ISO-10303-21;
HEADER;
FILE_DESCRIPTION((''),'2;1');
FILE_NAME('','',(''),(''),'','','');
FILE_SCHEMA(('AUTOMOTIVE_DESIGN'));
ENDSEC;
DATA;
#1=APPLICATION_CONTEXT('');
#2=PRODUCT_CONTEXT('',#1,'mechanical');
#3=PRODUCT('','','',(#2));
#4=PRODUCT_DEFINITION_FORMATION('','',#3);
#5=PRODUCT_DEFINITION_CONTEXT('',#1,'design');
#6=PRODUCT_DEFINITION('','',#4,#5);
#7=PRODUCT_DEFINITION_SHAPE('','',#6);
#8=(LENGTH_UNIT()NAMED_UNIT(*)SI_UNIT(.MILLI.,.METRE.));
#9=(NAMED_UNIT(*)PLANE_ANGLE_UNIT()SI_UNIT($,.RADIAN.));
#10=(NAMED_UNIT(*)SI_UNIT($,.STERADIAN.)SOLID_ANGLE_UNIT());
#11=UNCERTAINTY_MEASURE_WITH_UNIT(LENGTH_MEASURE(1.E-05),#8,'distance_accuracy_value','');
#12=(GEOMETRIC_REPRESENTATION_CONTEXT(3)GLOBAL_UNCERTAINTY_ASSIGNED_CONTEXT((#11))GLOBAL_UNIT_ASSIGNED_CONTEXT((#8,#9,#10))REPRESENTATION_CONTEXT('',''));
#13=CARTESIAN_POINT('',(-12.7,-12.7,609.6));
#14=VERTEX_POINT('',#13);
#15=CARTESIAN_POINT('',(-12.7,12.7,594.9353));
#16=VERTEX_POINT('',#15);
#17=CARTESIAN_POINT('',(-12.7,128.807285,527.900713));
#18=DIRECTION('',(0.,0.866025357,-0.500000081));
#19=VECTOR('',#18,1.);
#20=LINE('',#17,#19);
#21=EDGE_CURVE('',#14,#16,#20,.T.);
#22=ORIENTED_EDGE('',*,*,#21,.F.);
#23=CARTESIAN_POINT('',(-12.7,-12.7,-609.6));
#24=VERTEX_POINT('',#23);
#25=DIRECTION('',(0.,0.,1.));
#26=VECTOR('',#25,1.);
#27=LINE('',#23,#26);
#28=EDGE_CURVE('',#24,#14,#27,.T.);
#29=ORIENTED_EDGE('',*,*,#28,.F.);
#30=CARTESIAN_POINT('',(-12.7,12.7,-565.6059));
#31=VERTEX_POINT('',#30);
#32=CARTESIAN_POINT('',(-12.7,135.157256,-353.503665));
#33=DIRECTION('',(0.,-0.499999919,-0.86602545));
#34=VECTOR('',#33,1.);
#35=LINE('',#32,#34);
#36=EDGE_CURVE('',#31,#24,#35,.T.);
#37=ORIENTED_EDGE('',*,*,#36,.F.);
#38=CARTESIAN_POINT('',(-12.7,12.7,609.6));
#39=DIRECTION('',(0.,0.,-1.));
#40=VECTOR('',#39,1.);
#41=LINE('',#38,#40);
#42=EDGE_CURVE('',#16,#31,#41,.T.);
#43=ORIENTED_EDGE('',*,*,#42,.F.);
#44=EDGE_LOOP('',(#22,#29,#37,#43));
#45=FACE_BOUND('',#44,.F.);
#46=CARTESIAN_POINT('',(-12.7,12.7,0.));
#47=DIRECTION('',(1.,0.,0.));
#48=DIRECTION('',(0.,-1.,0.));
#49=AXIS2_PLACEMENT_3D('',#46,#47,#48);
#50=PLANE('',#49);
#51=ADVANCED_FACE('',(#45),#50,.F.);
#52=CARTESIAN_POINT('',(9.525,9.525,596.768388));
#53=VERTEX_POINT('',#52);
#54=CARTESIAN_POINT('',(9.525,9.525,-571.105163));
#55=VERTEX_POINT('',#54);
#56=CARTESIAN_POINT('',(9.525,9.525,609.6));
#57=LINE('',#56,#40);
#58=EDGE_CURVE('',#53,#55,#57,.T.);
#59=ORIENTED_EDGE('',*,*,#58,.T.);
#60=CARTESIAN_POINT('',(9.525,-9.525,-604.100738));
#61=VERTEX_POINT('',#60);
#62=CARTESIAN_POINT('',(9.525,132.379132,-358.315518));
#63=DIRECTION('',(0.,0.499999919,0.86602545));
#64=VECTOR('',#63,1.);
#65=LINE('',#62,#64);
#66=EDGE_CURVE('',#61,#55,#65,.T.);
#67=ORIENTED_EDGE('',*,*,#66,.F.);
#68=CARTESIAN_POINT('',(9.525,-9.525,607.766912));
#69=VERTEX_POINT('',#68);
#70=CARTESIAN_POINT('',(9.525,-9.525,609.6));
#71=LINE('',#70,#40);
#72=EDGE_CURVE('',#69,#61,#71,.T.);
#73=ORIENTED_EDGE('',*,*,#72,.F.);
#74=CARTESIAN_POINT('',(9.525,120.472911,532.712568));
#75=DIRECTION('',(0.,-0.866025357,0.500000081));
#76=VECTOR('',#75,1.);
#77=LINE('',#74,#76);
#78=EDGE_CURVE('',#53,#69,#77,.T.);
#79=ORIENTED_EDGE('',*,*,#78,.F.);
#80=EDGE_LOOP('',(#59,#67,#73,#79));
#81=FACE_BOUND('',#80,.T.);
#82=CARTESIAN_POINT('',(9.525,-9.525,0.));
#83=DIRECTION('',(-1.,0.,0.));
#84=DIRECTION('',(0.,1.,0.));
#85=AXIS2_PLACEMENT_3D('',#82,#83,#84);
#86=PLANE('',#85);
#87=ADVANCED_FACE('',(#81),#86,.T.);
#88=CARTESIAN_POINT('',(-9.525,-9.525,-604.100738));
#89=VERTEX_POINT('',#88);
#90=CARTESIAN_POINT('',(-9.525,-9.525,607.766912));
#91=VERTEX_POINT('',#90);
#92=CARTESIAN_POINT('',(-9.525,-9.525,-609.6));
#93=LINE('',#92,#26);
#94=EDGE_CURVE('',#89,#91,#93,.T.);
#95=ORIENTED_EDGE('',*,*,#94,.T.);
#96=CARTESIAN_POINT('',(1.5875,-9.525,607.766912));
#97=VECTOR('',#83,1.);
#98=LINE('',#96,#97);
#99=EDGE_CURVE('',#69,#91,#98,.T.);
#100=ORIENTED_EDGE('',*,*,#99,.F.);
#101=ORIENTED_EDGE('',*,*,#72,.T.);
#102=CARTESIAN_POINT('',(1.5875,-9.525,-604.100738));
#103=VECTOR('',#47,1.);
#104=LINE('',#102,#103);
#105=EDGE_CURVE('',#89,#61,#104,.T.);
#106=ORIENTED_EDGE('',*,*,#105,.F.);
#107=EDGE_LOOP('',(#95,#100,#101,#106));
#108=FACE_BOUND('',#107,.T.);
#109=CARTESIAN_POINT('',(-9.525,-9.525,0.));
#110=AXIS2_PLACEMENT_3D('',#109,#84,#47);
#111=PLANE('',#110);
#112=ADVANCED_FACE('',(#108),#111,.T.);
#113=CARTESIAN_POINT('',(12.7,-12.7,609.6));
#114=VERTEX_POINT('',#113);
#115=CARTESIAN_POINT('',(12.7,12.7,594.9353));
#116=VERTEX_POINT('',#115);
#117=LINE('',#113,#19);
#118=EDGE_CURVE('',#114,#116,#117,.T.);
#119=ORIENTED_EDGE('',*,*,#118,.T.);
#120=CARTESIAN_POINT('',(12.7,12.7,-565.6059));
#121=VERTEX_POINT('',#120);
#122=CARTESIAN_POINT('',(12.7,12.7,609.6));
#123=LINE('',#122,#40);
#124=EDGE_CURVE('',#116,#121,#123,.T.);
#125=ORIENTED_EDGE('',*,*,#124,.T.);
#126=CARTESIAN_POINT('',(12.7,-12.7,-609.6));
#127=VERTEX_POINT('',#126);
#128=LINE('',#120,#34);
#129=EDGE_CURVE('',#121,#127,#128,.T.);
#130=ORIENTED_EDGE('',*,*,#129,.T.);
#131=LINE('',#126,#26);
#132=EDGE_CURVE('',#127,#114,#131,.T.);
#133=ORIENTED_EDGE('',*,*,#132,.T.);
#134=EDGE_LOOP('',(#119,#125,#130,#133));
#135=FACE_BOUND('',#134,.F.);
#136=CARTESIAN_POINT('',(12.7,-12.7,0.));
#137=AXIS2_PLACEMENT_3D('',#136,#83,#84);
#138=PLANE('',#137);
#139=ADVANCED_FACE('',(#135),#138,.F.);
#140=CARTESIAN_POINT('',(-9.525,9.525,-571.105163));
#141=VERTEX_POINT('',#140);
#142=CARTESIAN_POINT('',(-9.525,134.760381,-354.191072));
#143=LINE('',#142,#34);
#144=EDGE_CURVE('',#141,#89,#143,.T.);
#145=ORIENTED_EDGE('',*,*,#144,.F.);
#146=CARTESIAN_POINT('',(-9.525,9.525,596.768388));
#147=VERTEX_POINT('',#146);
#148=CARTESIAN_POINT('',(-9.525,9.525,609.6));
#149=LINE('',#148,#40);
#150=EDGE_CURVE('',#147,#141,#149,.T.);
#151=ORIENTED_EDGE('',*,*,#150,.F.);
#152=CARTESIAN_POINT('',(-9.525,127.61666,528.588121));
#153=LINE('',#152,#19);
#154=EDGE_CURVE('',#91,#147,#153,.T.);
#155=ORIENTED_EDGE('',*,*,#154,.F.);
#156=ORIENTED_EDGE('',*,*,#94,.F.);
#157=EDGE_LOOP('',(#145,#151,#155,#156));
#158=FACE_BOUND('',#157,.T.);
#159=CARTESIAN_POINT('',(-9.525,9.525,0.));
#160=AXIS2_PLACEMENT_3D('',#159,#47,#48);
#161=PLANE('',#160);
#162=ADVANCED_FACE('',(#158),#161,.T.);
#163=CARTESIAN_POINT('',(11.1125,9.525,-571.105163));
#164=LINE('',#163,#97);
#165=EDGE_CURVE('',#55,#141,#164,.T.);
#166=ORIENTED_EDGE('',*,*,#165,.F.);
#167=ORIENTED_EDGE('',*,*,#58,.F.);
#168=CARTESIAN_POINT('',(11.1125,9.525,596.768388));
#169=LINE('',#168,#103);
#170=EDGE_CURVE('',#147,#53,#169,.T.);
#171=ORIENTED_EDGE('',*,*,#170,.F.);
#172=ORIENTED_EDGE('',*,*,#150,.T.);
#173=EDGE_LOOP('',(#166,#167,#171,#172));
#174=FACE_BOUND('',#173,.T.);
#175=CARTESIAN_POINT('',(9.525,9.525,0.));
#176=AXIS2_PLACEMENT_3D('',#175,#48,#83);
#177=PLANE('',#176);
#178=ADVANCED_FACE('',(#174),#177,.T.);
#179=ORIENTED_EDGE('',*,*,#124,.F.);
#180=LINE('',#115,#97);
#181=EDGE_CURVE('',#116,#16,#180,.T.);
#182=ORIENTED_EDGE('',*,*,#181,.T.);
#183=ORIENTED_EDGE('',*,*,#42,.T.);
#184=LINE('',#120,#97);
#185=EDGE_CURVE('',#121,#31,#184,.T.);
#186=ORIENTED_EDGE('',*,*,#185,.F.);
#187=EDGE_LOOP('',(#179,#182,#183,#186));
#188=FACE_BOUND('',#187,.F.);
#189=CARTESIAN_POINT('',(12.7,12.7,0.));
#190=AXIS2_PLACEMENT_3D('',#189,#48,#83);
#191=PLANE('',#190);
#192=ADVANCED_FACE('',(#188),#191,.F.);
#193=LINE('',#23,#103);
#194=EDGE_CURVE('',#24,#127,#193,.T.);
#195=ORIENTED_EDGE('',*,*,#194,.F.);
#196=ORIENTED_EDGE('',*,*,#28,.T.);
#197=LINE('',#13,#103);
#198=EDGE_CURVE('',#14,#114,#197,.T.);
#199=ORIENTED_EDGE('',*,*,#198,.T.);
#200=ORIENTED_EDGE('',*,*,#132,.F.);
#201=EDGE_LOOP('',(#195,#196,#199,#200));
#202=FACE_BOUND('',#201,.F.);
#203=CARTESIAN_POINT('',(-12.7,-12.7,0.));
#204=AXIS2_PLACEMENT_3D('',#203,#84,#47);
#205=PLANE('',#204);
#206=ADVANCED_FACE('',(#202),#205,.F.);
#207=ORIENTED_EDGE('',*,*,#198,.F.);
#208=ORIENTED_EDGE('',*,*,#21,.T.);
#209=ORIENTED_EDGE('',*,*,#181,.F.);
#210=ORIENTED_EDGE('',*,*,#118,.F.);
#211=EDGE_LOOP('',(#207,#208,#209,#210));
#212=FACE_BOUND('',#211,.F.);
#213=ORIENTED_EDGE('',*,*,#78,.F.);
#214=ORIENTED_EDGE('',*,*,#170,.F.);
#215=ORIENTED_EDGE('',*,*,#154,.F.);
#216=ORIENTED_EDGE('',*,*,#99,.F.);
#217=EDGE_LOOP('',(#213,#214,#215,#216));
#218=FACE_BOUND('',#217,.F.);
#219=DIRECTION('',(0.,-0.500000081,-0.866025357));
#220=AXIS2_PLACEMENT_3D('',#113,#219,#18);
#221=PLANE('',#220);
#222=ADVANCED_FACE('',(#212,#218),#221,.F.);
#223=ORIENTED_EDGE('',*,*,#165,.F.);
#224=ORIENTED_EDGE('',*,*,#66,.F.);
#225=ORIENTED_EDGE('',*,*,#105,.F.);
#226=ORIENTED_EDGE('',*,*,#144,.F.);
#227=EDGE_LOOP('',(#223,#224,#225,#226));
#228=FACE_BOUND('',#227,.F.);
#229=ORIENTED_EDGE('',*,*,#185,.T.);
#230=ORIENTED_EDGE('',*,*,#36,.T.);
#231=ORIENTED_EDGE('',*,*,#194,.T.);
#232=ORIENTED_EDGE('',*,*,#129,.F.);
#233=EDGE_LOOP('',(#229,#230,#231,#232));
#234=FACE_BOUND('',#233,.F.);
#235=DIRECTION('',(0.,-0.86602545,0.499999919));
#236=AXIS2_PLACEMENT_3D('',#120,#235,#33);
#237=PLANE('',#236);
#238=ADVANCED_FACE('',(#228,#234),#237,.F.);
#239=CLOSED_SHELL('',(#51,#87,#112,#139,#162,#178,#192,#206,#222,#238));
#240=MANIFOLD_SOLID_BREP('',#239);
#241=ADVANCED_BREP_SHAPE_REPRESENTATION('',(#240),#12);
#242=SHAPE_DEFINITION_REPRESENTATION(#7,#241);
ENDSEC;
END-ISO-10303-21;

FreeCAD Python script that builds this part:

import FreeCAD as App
import Part
import Sketcher
from FreeCAD import Vector
Q = App.Units.Quantity


def add_polygon(sketch, points):
    """Adds a closed chain of lines whose ends are joined by coincident constraints."""
    first, n = sketch.GeometryCount, len(points)
    for a, b in zip(points, points[1:] + points[:1]):
        sketch.addGeometry(Part.LineSegment(App.Vector(*a, 0), App.Vector(*b, 0)), False)
    for i in range(n):
        sketch.addConstraint(Sketcher.Constraint("Coincident", first + i, 2, first + (i + 1) % n, 1))

doc = App.newDocument("Part")
body = doc.addObject("PartDesign::Body", "Body")

sketch1 = doc.addObject("Sketcher::SketchObject", "Sketch")
body.addObject(sketch1)
sketch1.AttachmentSupport = (doc.XY_Plane, [""])
sketch1.MapMode = "FlatFace"
add_polygon(sketch1, [(-13, 13), (-13, -13), (13, -13), (13, 13)])
add_polygon(sketch1, [(10, -10), (-10, -10), (-10, 10), (10, 10)])
sketch1.addConstraint(Sketcher.Constraint("Vertical", 0))
sketch1.addConstraint(Sketcher.Constraint("Horizontal", 1))
sketch1.addConstraint(Sketcher.Constraint("Vertical", 2))
sketch1.addConstraint(Sketcher.Constraint("Horizontal", 3))
sketch1.addConstraint(Sketcher.Constraint("Horizontal", 4))
sketch1.addConstraint(Sketcher.Constraint("Vertical", 5))
sketch1.addConstraint(Sketcher.Constraint("Horizontal", 6))
sketch1.addConstraint(Sketcher.Constraint("Vertical", 7))
sketch1.addConstraint(Sketcher.Constraint("Symmetric", 0, 2, 2, 2, -1, 1))
sketch1.addConstraint(Sketcher.Constraint("Symmetric", 4, 2, 6, 2, -1, 1))
sketch1.addConstraint(Sketcher.Constraint("Equal", 3, 0))
sketch1.addConstraint(Sketcher.Constraint("Equal", 6, 5))
sketch1.addConstraint(Sketcher.Constraint("DistanceX", 1, 1, 1, 2, Q("1 in")))
sketch1.addConstraint(Sketcher.Constraint("DistanceX", 0, 2, 4, 2, Q("0.125 in")))
pad1 = doc.addObject("PartDesign::Pad", "Pad")
body.addObject(pad1)
pad1.Profile = sketch1
pad1.Length = Q("48 in")
pad1.Midplane = True

sketch2 = doc.addObject("Sketcher::SketchObject", "Sketch001")
body.addObject(sketch2)
sketch2.AttachmentSupport = (doc.YZ_Plane, [""])
sketch2.MapMode = "FlatFace"
sketch2.AttachmentOffset = App.Placement(Vector(0, 0, 0.5 * 25.4), App.Rotation())
add_polygon(sketch2, [(-13, -610), (13, -610), (13, -566)])
add_polygon(sketch2, [(-13, 610), (13, 595), (13, 610)])
sketch2.addConstraint(Sketcher.Constraint("Horizontal", 0))
sketch2.addConstraint(Sketcher.Constraint("Vertical", 1))
sketch2.addConstraint(Sketcher.Constraint("Vertical", 4))
sketch2.addConstraint(Sketcher.Constraint("Horizontal", 5))
sketch2.addConstraint(Sketcher.Constraint("Symmetric", 2, 2, 4, 2, -1, 1))
sketch2.addConstraint(Sketcher.Constraint("Perpendicular", 2, 3))
sketch2.addConstraint(Sketcher.Constraint("Vertical", 1, 2, 3, 2))
sketch2.addConstraint(Sketcher.Constraint("Vertical", 2, 2, 5, 2))
sketch2.addConstraint(Sketcher.Constraint("Angle", 3, Q("-30 deg")))
sketch2.addConstraint(Sketcher.Constraint("DistanceX", 0, 1, 0, 2, Q("1 in")))
sketch2.addConstraint(Sketcher.Constraint("DistanceY", 0, 2, -1, 1, Q("24 in")))
pocket1 = doc.addObject("PartDesign::Pocket", "Pocket")
body.addObject(pocket1)
pocket1.Profile = sketch2
pocket1.Type = "ThroughAll"

doc.recompute()
